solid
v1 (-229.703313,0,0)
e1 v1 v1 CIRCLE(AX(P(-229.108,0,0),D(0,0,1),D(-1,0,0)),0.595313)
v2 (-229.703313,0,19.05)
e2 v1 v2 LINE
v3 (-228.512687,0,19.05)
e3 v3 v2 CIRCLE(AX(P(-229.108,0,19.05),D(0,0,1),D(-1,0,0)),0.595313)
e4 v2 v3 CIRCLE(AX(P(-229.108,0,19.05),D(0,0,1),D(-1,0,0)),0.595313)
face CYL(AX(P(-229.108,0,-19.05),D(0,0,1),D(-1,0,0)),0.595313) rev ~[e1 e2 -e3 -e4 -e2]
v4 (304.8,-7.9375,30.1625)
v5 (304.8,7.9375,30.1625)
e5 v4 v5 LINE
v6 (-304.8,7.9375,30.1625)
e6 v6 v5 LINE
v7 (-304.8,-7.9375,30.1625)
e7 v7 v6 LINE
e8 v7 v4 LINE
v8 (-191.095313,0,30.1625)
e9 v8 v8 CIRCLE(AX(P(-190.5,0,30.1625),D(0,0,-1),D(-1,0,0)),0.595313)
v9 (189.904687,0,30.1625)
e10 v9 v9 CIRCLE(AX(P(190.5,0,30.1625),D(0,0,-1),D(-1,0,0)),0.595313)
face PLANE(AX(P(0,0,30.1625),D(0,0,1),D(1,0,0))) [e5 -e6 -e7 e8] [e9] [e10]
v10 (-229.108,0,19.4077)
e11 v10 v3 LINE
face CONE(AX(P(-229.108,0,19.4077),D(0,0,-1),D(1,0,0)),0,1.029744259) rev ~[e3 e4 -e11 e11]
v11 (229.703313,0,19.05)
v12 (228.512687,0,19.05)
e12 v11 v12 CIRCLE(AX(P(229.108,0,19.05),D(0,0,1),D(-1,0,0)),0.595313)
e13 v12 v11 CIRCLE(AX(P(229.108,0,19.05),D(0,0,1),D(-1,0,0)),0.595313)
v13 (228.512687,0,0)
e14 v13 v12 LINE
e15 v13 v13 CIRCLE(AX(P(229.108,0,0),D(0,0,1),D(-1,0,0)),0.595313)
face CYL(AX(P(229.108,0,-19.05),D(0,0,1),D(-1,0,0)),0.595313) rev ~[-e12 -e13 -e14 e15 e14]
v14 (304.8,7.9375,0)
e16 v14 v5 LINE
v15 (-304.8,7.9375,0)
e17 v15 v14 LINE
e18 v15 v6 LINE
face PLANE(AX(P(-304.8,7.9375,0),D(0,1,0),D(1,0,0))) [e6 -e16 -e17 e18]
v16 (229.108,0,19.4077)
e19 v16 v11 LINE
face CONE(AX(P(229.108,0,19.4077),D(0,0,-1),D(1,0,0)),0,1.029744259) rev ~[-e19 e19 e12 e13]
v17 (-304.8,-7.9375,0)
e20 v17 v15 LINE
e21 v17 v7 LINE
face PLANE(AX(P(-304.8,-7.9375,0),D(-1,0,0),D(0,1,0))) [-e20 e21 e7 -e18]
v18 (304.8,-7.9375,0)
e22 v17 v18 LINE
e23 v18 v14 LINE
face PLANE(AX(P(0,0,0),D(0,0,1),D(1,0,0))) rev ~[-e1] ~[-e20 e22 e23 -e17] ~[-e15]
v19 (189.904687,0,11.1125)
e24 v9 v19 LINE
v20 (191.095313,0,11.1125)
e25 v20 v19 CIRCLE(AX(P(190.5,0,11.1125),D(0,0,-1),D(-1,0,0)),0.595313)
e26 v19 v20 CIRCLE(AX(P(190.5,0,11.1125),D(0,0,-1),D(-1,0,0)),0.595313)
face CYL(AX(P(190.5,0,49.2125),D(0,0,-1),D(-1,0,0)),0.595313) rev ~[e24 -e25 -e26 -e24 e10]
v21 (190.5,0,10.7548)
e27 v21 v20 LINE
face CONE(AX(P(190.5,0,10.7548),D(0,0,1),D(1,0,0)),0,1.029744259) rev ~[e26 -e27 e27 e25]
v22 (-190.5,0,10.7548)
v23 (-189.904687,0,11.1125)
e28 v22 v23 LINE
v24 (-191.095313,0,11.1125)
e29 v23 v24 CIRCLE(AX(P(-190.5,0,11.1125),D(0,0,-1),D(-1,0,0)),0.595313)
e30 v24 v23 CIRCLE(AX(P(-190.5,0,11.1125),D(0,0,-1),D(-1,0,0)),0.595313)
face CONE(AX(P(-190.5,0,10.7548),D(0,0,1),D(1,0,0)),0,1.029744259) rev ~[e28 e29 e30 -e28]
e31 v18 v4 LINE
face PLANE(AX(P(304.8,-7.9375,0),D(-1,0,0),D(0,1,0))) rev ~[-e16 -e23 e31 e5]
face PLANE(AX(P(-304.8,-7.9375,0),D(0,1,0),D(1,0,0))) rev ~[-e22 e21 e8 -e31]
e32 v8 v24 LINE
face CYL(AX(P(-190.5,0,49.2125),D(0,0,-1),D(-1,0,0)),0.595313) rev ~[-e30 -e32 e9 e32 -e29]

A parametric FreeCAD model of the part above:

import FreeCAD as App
import Part
import Sketcher
Q = App.Units.Quantity


def add_polygon(sketch, points):
    """Adds a closed chain of lines whose ends are joined by coincident constraints."""
    first, n = sketch.GeometryCount, len(points)
    for a, b in zip(points, points[1:] + points[:1]):
        sketch.addGeometry(Part.LineSegment(App.Vector(*a, 0), App.Vector(*b, 0)), False)
    for i in range(n):
        sketch.addConstraint(Sketcher.Constraint("Coincident", first + i, 2, first + (i + 1) % n, 1))

doc = App.newDocument("Part")
body = doc.addObject("PartDesign::Body", "Body")

sketch1 = body.newObject("Sketcher::SketchObject", "Sketch")
sketch1.AttachmentSupport = (doc.getObject("XY_Plane"), [""])
sketch1.MapMode = "FlatFace"
add_polygon(sketch1, [(-304.8, 7.9375), (-304.8, -7.9375), (304.8, -7.9375), (304.8, 7.9375)])
sketch1.addConstraint([
    Sketcher.Constraint("Vertical", 0),
    Sketcher.Constraint("Horizontal", 1),
    Sketcher.Constraint("Vertical", 2),
    Sketcher.Constraint("Horizontal", 3),
    Sketcher.Constraint("Symmetric", 0, 2, 2, 2, -1, 1),
    Sketcher.Constraint("DistanceX", 1, 1, 1, 2, Q("24 in")),
    Sketcher.Constraint("DistanceY", 0, 2, 0, 1, Q("0.625 in")),
])
pad1 = body.newObject("PartDesign::Pad", "Pad")
pad1.Profile = sketch1
pad1.Length = Q("1.1875 in")

sketch2 = body.newObject("Sketcher::SketchObject", "Sketch001")
sketch2.AttachmentSupport = (doc.getObject("XY_Plane"), [""])
sketch2.MapMode = "FlatFace"
sketch2.addGeometry([
    Part.Circle(App.Vector(229.108, 0, 0), App.Vector(0, 0, 1), 0.595313),
    Part.Circle(App.Vector(-229.108, 0, 0), App.Vector(0, 0, 1), 0.595313),
], False)
sketch2.addConstraint([
    Sketcher.Constraint("Equal", 0, 1),
    Sketcher.Constraint("Symmetric", 0, 3, 1, 3, -1, 1),
    Sketcher.Constraint("PointOnObject", 0, 3, -1),
    Sketcher.Constraint("Diameter", 0, Q("0.046875 in")),
    Sketcher.Constraint("DistanceX", -1, 1, 0, 3, Q("9.02 in")),
])
doc.recompute()
hole = body.newObject("PartDesign::Hole", "Hole")
hole.Profile = sketch2
hole.ThreadType = "None"
hole.Diameter = Q("0.046875 in")
hole.DepthType = "Dimension"
hole.Depth = Q("0.75 in")
hole.DrillPoint = "Angled"
hole.DrillPointAngle = 118
hole.Reversed = True

sketch3 = body.newObject("Sketcher::SketchObject", "Sketch002")
sketch3.AttachmentSupport = (doc.getObject("XY_Plane"), [""])
sketch3.MapMode = "FlatFace"
sketch3.AttachmentOffset = App.Placement(App.Vector(0, 0, 1.1875 * 25.4), App.Rotation())
sketch3.addGeometry([
    Part.Circle(App.Vector(190.5, 0, 0), App.Vector(0, 0, 1), 0.595313),
    Part.Circle(App.Vector(-190.5, 0, 0), App.Vector(0, 0, 1), 0.595313),
], False)
sketch3.addConstraint([
    Sketcher.Constraint("Equal", 0, 1),
    Sketcher.Constraint("Symmetric", 0, 3, 1, 3, -1, 1),
    Sketcher.Constraint("PointOnObject", 0, 3, -1),
    Sketcher.Constraint("Diameter", 0, Q("0.046875 in")),
    Sketcher.Constraint("DistanceX", 1, 3, 0, 3, Q("15 in")),
])
doc.recompute()
hole2 = body.newObject("PartDesign::Hole", "Hole001")
hole2.Profile = sketch3
hole2.ThreadType = "None"
hole2.Diameter = Q("0.046875 in")
hole2.DepthType = "Dimension"
hole2.Depth = Q("0.75 in")
hole2.DrillPoint = "Angled"
hole2.DrillPointAngle = 118

doc.recompute()
